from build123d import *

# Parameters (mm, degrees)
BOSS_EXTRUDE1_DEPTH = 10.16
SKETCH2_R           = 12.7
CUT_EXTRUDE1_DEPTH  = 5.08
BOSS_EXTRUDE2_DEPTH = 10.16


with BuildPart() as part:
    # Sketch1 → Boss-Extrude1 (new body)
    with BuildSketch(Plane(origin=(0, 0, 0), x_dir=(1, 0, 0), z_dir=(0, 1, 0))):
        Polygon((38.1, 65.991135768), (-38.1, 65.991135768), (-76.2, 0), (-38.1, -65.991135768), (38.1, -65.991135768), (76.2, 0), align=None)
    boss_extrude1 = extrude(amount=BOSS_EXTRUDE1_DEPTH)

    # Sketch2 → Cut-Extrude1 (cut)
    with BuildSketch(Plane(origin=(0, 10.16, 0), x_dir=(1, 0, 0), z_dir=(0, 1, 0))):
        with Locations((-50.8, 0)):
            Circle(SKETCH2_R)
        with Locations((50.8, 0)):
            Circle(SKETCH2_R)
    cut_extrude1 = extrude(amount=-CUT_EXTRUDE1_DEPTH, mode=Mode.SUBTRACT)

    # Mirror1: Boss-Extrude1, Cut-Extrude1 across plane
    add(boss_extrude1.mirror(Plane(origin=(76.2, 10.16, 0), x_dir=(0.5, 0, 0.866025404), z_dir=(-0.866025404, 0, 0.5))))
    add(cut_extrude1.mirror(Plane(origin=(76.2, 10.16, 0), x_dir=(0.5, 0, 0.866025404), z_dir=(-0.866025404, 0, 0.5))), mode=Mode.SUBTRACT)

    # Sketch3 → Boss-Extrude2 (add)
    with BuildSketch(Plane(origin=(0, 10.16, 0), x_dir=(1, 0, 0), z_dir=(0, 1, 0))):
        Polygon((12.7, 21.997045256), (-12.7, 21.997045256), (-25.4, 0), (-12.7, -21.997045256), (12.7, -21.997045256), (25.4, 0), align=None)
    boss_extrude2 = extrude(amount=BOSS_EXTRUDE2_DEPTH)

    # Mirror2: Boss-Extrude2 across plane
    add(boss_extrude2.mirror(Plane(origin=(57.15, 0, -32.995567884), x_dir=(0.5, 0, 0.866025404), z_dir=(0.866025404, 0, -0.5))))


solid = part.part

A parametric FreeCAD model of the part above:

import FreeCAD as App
import Part
import Sketcher

V = App.Vector
Q = App.Units.Quantity

doc = App.newDocument("Part")
body = doc.addObject("PartDesign::Body", "Body")

sketch1 = doc.addObject("Sketcher::SketchObject", "Sketch")
body.addObject(sketch1)
sketch1.AttachmentSupport = (doc.XZ_Plane, [""])
sketch1.MapMode = "FlatFace"
sketch1.addGeometry(Part.LineSegment(V(38, -66, 0), V(-38, -66, 0)), False)
sketch1.addGeometry(Part.LineSegment(V(-38, -66, 0), V(-76, 0, 0)), False)
sketch1.addGeometry(Part.LineSegment(V(-76, 0, 0), V(-38, 66, 0)), False)
sketch1.addGeometry(Part.LineSegment(V(-38, 66, 0), V(38, 66, 0)), False)
sketch1.addGeometry(Part.LineSegment(V(38, 66, 0), V(76, 0, 0)), False)
sketch1.addGeometry(Part.LineSegment(V(76, 0, 0), V(38, -66, 0)), False)
sketch1.addConstraint(Sketcher.Constraint("Coincident", 0, 2, 1, 1))
sketch1.addConstraint(Sketcher.Constraint("Coincident", 1, 2, 2, 1))
sketch1.addConstraint(Sketcher.Constraint("Coincident", 2, 2, 3, 1))
sketch1.addConstraint(Sketcher.Constraint("Coincident", 3, 2, 4, 1))
sketch1.addConstraint(Sketcher.Constraint("Coincident", 4, 2, 5, 1))
sketch1.addConstraint(Sketcher.Constraint("Coincident", 5, 2, 0, 1))
sketch1.addConstraint(Sketcher.Constraint("Horizontal", 0))
sketch1.addConstraint(Sketcher.Constraint("Horizontal", 3))
sketch1.addConstraint(Sketcher.Constraint("Symmetric", 0, 2, 3, 2, -1, 1))
sketch1.addConstraint(Sketcher.Constraint("Symmetric", 1, 2, 4, 2, -1, 1))
sketch1.addConstraint(Sketcher.Constraint("PointOnObject", 1, 2, -1))
sketch1.addConstraint(Sketcher.Constraint("Parallel", 2, 5))
sketch1.addConstraint(Sketcher.Constraint("Vertical", 0, 2, 2, 2))
sketch1.addConstraint(Sketcher.Constraint("DistanceX", 0, 2, 0, 1, Q("3 in")))
sketch1.addConstraint(Sketcher.Constraint("Distance", 1, Q("3 in")))
sketch1.addConstraint(Sketcher.Constraint("DistanceX", 1, 2, -1, 1, Q("3 in")))
pad1 = doc.addObject("PartDesign::Pad", "Pad")
body.addObject(pad1)
pad1.Profile = sketch1
pad1.Length = Q("0.4 in")
pad1.Reversed = True

sketch2 = doc.addObject("Sketcher::SketchObject", "Sketch001")
body.addObject(sketch2)
sketch2.AttachmentSupport = (doc.XZ_Plane, [""])
sketch2.MapMode = "FlatFace"
sketch2.AttachmentOffset = App.Placement(V(0, 0, -0.4 * 25.4), App.Rotation())
sketch2.addGeometry(Part.Circle(V(-51, 0, 0), V(0, 0, 1), 13), False)
sketch2.addGeometry(Part.Circle(V(51, 0, 0), V(0, 0, 1), 13), False)
sketch2.addConstraint(Sketcher.Constraint("Equal", 0, 1))
sketch2.addConstraint(Sketcher.Constraint("Symmetric", 0, 3, 1, 3, -1, 1))
sketch2.addConstraint(Sketcher.Constraint("PointOnObject", 0, 3, -1))
sketch2.addConstraint(Sketcher.Constraint("Diameter", 0, Q("1 in")))
sketch2.addConstraint(Sketcher.Constraint("DistanceX", 0, 3, -1, 1, Q("2 in")))
pocket1 = doc.addObject("PartDesign::Pocket", "Pocket")
body.addObject(pocket1)
pocket1.Profile = sketch2
pocket1.Length = Q("0.2 in")
pocket1.Reversed = True
doc.recompute()

datumplane = doc.addObject("PartDesign::Plane", "DatumPlane")
body.addObject(datumplane)
datumplane.Placement = App.Placement(V(57.15, 0, -32.995568), App.Rotation(V(-0.5, 0, -0.866025404), V(0, -1, 0), V(-0.866025404, 0, 0.5), "ZXY"))
mirrored = doc.addObject("PartDesign::Mirrored", "Mirrored")
body.addObject(mirrored)
mirrored.Originals = [pad1, pocket1]
mirrored.MirrorPlane = (datumplane, [""])
body.Tip = mirrored

sketch3 = doc.addObject("Sketcher::SketchObject", "Sketch002")
body.addObject(sketch3)
sketch3.AttachmentSupport = (doc.XZ_Plane, [""])
sketch3.MapMode = "FlatFace"
sketch3.AttachmentOffset = App.Placement(V(0, 0, -0.4 * 25.4), App.Rotation())
sketch3.addGeometry(Part.LineSegment(V(13, -22, 0), V(-13, -22, 0)), False)
sketch3.addGeometry(Part.LineSegment(V(-13, -22, 0), V(-25, 0, 0)), False)
sketch3.addGeometry(Part.LineSegment(V(-25, 0, 0), V(-13, 22, 0)), False)
sketch3.addGeometry(Part.LineSegment(V(-13, 22, 0), V(13, 22, 0)), False)
sketch3.addGeometry(Part.LineSegment(V(13, 22, 0), V(25, 0, 0)), False)
sketch3.addGeometry(Part.LineSegment(V(25, 0, 0), V(13, -22, 0)), False)
sketch3.addConstraint(Sketcher.Constraint("Coincident", 0, 2, 1, 1))
sketch3.addConstraint(Sketcher.Constraint("Coincident", 1, 2, 2, 1))
sketch3.addConstraint(Sketcher.Constraint("Coincident", 2, 2, 3, 1))
sketch3.addConstraint(Sketcher.Constraint("Coincident", 3, 2, 4, 1))
sketch3.addConstraint(Sketcher.Constraint("Coincident", 4, 2, 5, 1))
sketch3.addConstraint(Sketcher.Constraint("Coincident", 5, 2, 0, 1))
sketch3.addConstraint(Sketcher.Constraint("Horizontal", 0))
sketch3.addConstraint(Sketcher.Constraint("Horizontal", 3))
sketch3.addConstraint(Sketcher.Constraint("Symmetric", 0, 2, 3, 2, -1, 1))
sketch3.addConstraint(Sketcher.Constraint("Symmetric", 1, 2, 4, 2, -1, 1))
sketch3.addConstraint(Sketcher.Constraint("PointOnObject", 1, 2, -1))
sketch3.addConstraint(Sketcher.Constraint("Parallel", 2, 5))
sketch3.addConstraint(Sketcher.Constraint("Vertical", 0, 2, 2, 2))
sketch3.addConstraint(Sketcher.Constraint("DistanceX", 0, 2, 0, 1, Q("1 in")))
sketch3.addConstraint(Sketcher.Constraint("Distance", 1, Q("1 in")))
sketch3.addConstraint(Sketcher.Constraint("DistanceX", 1, 2, -1, 1, Q("1 in")))
pad2 = doc.addObject("PartDesign::Pad", "Pad001")
body.addObject(pad2)
pad2.Profile = sketch3
pad2.Length = Q("0.4 in")
pad2.Reversed = True
doc.recompute()

datumplane2 = doc.addObject("PartDesign::Plane", "DatumPlane001")
body.addObject(datumplane2)
datumplane2.Placement = App.Placement(V(57.15, 0, -32.995568), App.Rotation(V(0.5, 0, 0.866025404), V(0, -1, 0), V(0.866025404, 0, -0.5), "ZXY"))
mirrored2 = doc.addObject("PartDesign::Mirrored", "Mirrored001")
body.addObject(mirrored2)
mirrored2.Originals = [pad2]
mirrored2.MirrorPlane = (datumplane2, [""])
body.Tip = mirrored2

doc.recompute()
